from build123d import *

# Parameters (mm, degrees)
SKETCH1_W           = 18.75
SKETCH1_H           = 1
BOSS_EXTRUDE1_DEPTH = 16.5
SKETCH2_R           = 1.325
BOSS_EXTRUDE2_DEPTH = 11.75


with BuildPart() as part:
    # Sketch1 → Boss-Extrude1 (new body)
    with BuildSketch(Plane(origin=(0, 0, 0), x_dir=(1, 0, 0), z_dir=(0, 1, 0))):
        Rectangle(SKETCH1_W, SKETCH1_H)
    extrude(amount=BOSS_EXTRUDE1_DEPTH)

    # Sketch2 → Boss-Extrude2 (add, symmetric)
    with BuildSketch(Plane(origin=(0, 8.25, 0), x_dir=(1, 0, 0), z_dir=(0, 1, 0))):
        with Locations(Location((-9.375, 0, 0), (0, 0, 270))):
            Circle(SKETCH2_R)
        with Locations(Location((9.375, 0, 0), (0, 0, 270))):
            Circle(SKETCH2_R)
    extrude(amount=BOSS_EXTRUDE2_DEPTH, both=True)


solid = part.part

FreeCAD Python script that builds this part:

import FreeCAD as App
import Part
import Sketcher

V = App.Vector
Q = App.Units.Quantity


def add_polygon(sketch, points):
    """Adds a closed chain of lines whose ends are joined by coincident constraints."""
    first, n = sketch.GeometryCount, len(points)
    for a, b in zip(points, points[1:] + points[:1]):
        sketch.addGeometry(Part.LineSegment(App.Vector(*a, 0), App.Vector(*b, 0)), False)
    for i in range(n):
        sketch.addConstraint(Sketcher.Constraint("Coincident", first + i, 2, first + (i + 1) % n, 1))

doc = App.newDocument("Part")
params = doc.addObject("Spreadsheet::Sheet", "Params")
for row, (alias, value) in enumerate([
    ("sketch1_height", "1 mm"),
    ("sketch1_width", "18.75 mm"),
    ("pad1_length", "16.5 mm"),
    ("sketch2_diameter", "2.65 mm"),
    ("pad2_length", "23.5 mm"),
], start=1):
    params.set(f"A{row}", alias)
    params.set(f"B{row}", "=" + value)
    params.setAlias(f"B{row}", alias)

body = doc.addObject("PartDesign::Body", "Body")

# Sketch on XZ plane
sketch1 = body.newObject("Sketcher::SketchObject", "Sketch")
sketch1.AttachmentSupport = (doc.getObject("XZ_Plane"), [""])
sketch1.MapMode = "FlatFace"
add_polygon(sketch1, [(-9.375, -0.5), (-9.375, 0.5), (9.375, 0.5), (9.375, -0.5)])  # lines 0-3
sketch1.addConstraint([
    Sketcher.Constraint("Vertical", 0),
    Sketcher.Constraint("Horizontal", 1),
    Sketcher.Constraint("Vertical", 2),
    Sketcher.Constraint("Horizontal", 3),
    Sketcher.Constraint("Symmetric", 0, 2, 2, 2, -1, 1),
    Sketcher.Constraint("DistanceY", 0, 1, 0, 2, Q("1 mm")),
    Sketcher.Constraint("DistanceX", 1, 1, 1, 2, Q("18.75 mm")),
])
sketch1.setExpression("Constraints[9]", "Params.sketch1_height")
sketch1.setExpression("Constraints[10]", "Params.sketch1_width")
pad1 = body.newObject("PartDesign::Pad", "Pad")
pad1.Profile = sketch1
pad1.setExpression("Length", "Params.pad1_length")
pad1.Reversed = True

# Sketch on XZ plane
sketch2 = body.newObject("Sketcher::SketchObject", "Sketch001")
sketch2.AttachmentSupport = (doc.getObject("XZ_Plane"), [""])
sketch2.MapMode = "FlatFace"
sketch2.AttachmentOffset = App.Placement(V(0, 0, -8.25), App.Rotation())
sketch2.addGeometry([
    Part.Circle(V(-9.375, 0, 0), V(0, 0, 1), 1.325),
    Part.Circle(V(9.375, 0, 0), V(0, 0, 1), 1.325),
], False)
sketch2.addConstraint([
    Sketcher.Constraint("Equal", 0, 1),
    Sketcher.Constraint("Symmetric", 0, 3, 1, 3, -1, 1),
    Sketcher.Constraint("PointOnObject", 0, 3, -1),
    Sketcher.Constraint("Diameter", 0, Q("2.65 mm")),
    Sketcher.Constraint("DistanceX", 0, 3, 1, 3, Q("18.75 mm")),
])
sketch2.setExpression("Constraints[3]", "Params.sketch2_diameter")
pad2 = body.newObject("PartDesign::Pad", "Pad001")
pad2.Profile = sketch2
pad2.setExpression("Length", "Params.pad2_length")
pad2.Midplane = True

doc.recompute()
